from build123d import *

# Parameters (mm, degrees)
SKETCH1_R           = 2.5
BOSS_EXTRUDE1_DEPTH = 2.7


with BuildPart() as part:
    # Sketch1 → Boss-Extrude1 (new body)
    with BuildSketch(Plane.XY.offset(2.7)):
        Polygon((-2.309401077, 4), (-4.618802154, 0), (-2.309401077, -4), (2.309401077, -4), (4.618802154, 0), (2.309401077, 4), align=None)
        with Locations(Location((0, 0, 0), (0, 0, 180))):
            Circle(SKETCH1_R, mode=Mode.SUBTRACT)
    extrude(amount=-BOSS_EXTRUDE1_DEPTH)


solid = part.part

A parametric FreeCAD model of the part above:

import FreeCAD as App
import Part
import Sketcher

V = App.Vector
Q = App.Units.Quantity

doc = App.newDocument("Part")
params = doc.addObject("Spreadsheet::Sheet", "Params")
for row, (alias, value) in enumerate([
    ("sketch1_diameter", "5 mm"),
    ("pad1_length", "2.7 mm"),
], start=1):
    params.set(f"A{row}", alias)
    params.set(f"B{row}", "=" + value)
    params.setAlias(f"B{row}", alias)

body = doc.addObject("PartDesign::Body", "Body")

sketch1 = doc.addObject("Sketcher::SketchObject", "Sketch")
body.addObject(sketch1)
sketch1.AttachmentSupport = (doc.XY_Plane, [""])
sketch1.MapMode = "FlatFace"
sketch1.AttachmentOffset = App.Placement(V(0, 0, 2.7), App.Rotation())
sketch1.addGeometry(Part.LineSegment(V(-2.3, 4, 0), V(-4.6, 0, 0)), False)
sketch1.addGeometry(Part.LineSegment(V(-4.6, 0, 0), V(-2.3, -4, 0)), False)
sketch1.addGeometry(Part.LineSegment(V(-2.3, -4, 0), V(2.3, -4, 0)), False)
sketch1.addGeometry(Part.LineSegment(V(2.3, -4, 0), V(4.6, 0, 0)), False)
sketch1.addGeometry(Part.LineSegment(V(4.6, 0, 0), V(2.3, 4, 0)), False)
sketch1.addGeometry(Part.LineSegment(V(2.3, 4, 0), V(-2.3, 4, 0)), False)
sketch1.addGeometry(Part.Circle(V(0, 0, 0), V(0, 0, 1), 2.5), False)
sketch1.addConstraint(Sketcher.Constraint("Coincident", 0, 2, 1, 1))
sketch1.addConstraint(Sketcher.Constraint("Coincident", 1, 2, 2, 1))
sketch1.addConstraint(Sketcher.Constraint("Coincident", 2, 2, 3, 1))
sketch1.addConstraint(Sketcher.Constraint("Coincident", 3, 2, 4, 1))
sketch1.addConstraint(Sketcher.Constraint("Coincident", 4, 2, 5, 1))
sketch1.addConstraint(Sketcher.Constraint("Coincident", 5, 2, 0, 1))
sketch1.addConstraint(Sketcher.Constraint("Horizontal", 2))
sketch1.addConstraint(Sketcher.Constraint("Horizontal", 5))
sketch1.addConstraint(Sketcher.Constraint("Coincident", 6, 3, -1, 1))
sketch1.addConstraint(Sketcher.Constraint("Symmetric", 0, 2, 3, 2, -1, 1))
sketch1.addConstraint(Sketcher.Constraint("Symmetric", 1, 2, 4, 2, -1, 1))
sketch1.addConstraint(Sketcher.Constraint("PointOnObject", 0, 2, -1))
sketch1.addConstraint(Sketcher.Constraint("Parallel", 0, 3))
sketch1.addConstraint(Sketcher.Constraint("Vertical", 2, 2, 4, 2))
sketch1.addConstraint(Sketcher.Constraint("Diameter", 6, Q("5 mm")))
sketch1.addConstraint(Sketcher.Constraint("Angle", 0, Q("-120 deg")))
sketch1.addConstraint(Sketcher.Constraint("DistanceY", 1, 2, -1, 1, Q("4 mm")))
sketch1.addConstraint(Sketcher.Constraint("DistanceX", 1, 2, -1, 1, Q("2.309401 mm")))
sketch1.setExpression("Constraints[14]", "Params.sketch1_diameter")
pad1 = doc.addObject("PartDesign::Pad", "Pad")
body.addObject(pad1)
pad1.Profile = sketch1
pad1.setExpression("Length", "Params.pad1_length")
pad1.Reversed = True

doc.recompute()
